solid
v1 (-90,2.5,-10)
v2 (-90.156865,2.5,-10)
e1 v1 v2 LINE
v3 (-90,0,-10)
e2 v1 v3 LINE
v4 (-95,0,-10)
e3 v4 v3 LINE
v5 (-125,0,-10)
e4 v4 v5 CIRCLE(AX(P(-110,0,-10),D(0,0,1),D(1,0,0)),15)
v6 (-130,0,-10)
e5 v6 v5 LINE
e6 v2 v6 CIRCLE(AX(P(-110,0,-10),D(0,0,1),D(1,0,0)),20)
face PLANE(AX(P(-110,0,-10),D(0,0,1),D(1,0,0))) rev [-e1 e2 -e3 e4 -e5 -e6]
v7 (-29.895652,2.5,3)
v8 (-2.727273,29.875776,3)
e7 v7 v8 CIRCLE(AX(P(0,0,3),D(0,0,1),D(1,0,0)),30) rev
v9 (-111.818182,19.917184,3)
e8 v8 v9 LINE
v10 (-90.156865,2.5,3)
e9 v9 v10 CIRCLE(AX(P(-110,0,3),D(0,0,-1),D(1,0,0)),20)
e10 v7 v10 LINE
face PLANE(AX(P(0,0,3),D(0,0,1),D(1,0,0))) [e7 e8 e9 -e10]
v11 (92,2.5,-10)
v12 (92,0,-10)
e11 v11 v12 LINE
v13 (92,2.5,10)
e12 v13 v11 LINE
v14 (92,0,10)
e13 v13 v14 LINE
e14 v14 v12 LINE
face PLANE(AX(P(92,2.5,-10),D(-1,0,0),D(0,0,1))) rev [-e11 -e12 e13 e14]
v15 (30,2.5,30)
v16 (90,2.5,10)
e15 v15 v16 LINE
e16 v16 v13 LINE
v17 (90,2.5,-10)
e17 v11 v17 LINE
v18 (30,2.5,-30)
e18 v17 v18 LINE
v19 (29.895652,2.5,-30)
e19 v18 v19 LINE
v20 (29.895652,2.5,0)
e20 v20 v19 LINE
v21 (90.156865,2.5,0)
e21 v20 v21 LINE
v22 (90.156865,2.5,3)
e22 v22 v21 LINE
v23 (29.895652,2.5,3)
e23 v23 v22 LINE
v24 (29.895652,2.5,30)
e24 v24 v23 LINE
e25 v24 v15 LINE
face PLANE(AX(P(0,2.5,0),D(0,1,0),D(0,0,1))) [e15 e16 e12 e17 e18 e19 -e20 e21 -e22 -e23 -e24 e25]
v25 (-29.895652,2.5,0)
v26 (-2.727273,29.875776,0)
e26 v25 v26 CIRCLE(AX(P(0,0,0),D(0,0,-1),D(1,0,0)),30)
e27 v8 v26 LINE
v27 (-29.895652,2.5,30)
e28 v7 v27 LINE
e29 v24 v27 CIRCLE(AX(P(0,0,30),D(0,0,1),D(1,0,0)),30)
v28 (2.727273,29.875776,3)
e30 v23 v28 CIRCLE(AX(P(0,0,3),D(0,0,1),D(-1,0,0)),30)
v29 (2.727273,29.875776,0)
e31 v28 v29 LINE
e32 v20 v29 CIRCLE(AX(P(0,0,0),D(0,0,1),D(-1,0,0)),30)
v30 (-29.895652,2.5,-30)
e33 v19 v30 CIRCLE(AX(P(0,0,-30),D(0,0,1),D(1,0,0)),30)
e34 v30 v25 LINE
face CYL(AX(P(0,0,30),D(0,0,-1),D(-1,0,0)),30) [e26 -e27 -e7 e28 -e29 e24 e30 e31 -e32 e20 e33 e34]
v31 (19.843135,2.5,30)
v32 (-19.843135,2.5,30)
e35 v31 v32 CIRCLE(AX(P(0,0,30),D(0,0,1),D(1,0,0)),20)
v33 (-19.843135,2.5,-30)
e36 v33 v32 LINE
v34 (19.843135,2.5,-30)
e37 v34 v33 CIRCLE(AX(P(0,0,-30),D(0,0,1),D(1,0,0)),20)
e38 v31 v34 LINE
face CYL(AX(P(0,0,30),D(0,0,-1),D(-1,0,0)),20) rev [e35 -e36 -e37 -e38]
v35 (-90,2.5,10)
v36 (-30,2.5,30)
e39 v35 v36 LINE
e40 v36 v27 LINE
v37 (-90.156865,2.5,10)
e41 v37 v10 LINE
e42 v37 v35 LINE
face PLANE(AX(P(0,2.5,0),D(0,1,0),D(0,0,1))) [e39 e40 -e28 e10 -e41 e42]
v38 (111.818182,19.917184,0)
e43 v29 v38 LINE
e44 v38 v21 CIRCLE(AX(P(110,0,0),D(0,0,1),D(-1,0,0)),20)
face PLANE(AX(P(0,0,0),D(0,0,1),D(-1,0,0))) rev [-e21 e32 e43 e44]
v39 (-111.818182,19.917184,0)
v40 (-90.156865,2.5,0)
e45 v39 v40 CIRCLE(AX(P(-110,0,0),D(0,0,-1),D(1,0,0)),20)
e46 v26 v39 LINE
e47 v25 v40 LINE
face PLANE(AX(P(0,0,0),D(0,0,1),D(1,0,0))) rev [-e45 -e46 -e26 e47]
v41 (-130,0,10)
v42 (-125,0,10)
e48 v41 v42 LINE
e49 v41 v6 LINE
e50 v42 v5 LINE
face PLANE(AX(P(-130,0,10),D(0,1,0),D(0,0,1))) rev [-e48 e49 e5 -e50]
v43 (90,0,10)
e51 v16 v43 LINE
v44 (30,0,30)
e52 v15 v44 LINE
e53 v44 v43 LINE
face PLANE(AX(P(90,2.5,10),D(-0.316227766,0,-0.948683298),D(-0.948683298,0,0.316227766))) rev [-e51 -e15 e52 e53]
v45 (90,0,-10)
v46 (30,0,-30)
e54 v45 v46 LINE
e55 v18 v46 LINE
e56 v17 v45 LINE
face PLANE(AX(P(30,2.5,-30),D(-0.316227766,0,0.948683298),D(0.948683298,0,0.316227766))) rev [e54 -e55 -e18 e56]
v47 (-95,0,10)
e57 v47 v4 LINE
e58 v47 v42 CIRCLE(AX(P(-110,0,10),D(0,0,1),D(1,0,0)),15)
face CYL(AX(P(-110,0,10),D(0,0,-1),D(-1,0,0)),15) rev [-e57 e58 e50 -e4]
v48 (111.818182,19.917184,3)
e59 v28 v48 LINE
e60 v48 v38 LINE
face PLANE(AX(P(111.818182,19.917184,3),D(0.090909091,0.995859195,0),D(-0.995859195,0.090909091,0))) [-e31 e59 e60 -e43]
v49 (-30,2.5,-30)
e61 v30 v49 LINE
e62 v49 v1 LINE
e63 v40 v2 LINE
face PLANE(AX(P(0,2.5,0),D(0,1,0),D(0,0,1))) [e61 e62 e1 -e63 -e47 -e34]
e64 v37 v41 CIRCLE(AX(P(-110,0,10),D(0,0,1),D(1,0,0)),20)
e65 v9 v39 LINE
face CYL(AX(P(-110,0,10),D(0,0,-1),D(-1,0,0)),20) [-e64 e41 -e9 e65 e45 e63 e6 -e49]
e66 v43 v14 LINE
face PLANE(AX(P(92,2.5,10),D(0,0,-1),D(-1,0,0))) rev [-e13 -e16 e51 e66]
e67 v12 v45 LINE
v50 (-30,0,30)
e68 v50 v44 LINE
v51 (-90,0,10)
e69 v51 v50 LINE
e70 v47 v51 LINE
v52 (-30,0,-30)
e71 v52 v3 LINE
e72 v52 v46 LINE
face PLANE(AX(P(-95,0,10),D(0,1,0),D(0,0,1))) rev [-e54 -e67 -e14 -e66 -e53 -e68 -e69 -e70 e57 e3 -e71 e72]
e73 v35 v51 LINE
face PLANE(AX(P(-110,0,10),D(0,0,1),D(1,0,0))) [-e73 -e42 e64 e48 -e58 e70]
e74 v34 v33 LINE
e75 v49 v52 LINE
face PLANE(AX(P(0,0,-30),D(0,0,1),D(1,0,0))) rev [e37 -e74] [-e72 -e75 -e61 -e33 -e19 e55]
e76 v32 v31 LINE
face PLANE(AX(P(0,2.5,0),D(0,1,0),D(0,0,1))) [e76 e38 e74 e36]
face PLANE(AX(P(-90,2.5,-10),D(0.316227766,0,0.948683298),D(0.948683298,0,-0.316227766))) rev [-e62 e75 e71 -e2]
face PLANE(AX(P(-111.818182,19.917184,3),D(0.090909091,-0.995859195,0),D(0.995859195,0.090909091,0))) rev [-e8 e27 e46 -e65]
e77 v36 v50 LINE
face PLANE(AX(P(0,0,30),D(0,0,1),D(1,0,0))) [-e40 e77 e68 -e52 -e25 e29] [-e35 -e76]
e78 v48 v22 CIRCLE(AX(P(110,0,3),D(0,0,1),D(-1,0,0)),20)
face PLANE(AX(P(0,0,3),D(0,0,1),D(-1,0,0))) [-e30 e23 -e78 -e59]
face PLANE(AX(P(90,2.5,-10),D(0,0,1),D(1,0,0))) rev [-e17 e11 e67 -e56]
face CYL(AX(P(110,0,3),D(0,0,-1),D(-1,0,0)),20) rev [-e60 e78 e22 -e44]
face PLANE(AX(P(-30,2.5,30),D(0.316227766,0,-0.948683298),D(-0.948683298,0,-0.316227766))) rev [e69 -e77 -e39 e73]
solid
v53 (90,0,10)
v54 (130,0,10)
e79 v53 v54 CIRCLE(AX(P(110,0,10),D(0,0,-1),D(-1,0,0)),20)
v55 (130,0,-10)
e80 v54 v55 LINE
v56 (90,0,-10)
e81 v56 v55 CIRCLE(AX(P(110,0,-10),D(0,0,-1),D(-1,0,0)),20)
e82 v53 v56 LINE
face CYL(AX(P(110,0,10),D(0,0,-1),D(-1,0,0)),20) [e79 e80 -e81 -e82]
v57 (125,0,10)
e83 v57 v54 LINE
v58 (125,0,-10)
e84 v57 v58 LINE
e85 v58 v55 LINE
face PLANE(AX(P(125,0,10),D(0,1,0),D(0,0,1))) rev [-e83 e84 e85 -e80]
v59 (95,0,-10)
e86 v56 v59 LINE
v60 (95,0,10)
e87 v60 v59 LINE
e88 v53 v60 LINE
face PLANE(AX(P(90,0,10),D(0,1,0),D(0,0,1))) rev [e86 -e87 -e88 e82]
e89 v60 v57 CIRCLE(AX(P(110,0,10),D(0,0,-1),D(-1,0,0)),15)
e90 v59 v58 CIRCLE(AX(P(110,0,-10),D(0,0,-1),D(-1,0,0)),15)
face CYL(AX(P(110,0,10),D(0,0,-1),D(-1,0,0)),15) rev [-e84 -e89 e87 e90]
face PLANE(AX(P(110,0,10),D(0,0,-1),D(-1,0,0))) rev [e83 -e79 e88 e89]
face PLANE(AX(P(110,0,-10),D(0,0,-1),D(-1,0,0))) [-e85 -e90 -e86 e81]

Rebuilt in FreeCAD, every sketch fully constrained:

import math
import FreeCAD as App
import Part
import Sketcher

V = App.Vector
Q = App.Units.Quantity

doc = App.newDocument("Part")
body = doc.addObject("PartDesign::Body", "Body")

sketch1 = body.newObject("Sketcher::SketchObject", "Sketch")
sketch1.AttachmentSupport = (doc.getObject("XY_Plane"), [""])
sketch1.MapMode = "FlatFace"
sketch1.addGeometry([
    Part.LineSegment(V(20, 0, 0), V(30, 0, 0)),
    Part.ArcOfCircle(Part.Circle(V(0, 0, 0), V(0, 0, 1), 30), math.radians(0), math.radians(180)),
    Part.LineSegment(V(-30, 0, 0), V(-20, 0, 0)),
    Part.ArcOfCircle(Part.Circle(V(0, 0, 0), V(0, 0, 1), 20), math.radians(0), math.radians(180)),
], False)
sketch1.addConstraint([
    Sketcher.Constraint("Coincident", 0, 2, 1, 1),
    Sketcher.Constraint("Coincident", 1, 2, 2, 1),
    Sketcher.Constraint("Coincident", 2, 2, 3, 2),
    Sketcher.Constraint("Coincident", 3, 1, 0, 1),
    Sketcher.Constraint("Horizontal", 0),
    Sketcher.Constraint("Horizontal", 2),
    Sketcher.Constraint("Coincident", 1, 3, -1, 1),
    Sketcher.Constraint("Coincident", 3, 3, -1, 1),
    Sketcher.Constraint("PointOnObject", 0, 2, -1),
    Sketcher.Constraint("PointOnObject", 1, 2, -1),
    Sketcher.Constraint("Radius", 1, Q("30 mm")),
    Sketcher.Constraint("Radius", 3, Q("20 mm")),
])
pad1 = body.newObject("PartDesign::Pad", "Pad")
pad1.Profile = sketch1
pad1.Length = 60
pad1.Midplane = True

sketch2 = body.newObject("Sketcher::SketchObject", "Sketch001")
sketch2.AttachmentSupport = (doc.getObject("XZ_Plane"), [""])
sketch2.MapMode = "FlatFace"
sketch2.addGeometry([
    Part.LineSegment(V(-30, -30, 0), V(-90, -10, 0)),
    Part.LineSegment(V(-90, -10, 0), V(-92, -10, 0)),
    Part.LineSegment(V(-92, -10, 0), V(-92, 10, 0)),
    Part.LineSegment(V(-92, 10, 0), V(-90, 10, 0)),
    Part.LineSegment(V(-90, 10, 0), V(-30, 30, 0)),
    Part.LineSegment(V(-30, 30, 0), V(30, 30, 0)),
    Part.LineSegment(V(30, 30, 0), V(90, 10, 0)),
    Part.LineSegment(V(90, 10, 0), V(92, 10, 0)),
    Part.LineSegment(V(92, 10, 0), V(92, -10, 0)),
    Part.LineSegment(V(92, -10, 0), V(90, -10, 0)),
    Part.LineSegment(V(90, -10, 0), V(30, -30, 0)),
    Part.LineSegment(V(30, -30, 0), V(-30, -30, 0)),
], False)
sketch2.addConstraint([
    Sketcher.Constraint("Coincident", 0, 2, 1, 1),
    Sketcher.Constraint("Coincident", 1, 2, 2, 1),
    Sketcher.Constraint("Coincident", 2, 2, 3, 1),
    Sketcher.Constraint("Coincident", 3, 2, 4, 1),
    Sketcher.Constraint("Coincident", 4, 2, 5, 1),
    Sketcher.Constraint("Coincident", 5, 2, 6, 1),
    Sketcher.Constraint("Coincident", 6, 2, 7, 1),
    Sketcher.Constraint("Coincident", 7, 2, 8, 1),
    Sketcher.Constraint("Coincident", 8, 2, 9, 1),
    Sketcher.Constraint("Coincident", 9, 2, 10, 1),
    Sketcher.Constraint("Coincident", 10, 2, 11, 1),
    Sketcher.Constraint("Coincident", 11, 2, 0, 1),
    Sketcher.Constraint("Horizontal", 1),
    Sketcher.Constraint("Vertical", 2),
    Sketcher.Constraint("Horizontal", 3),
    Sketcher.Constraint("Horizontal", 5),
    Sketcher.Constraint("Horizontal", 7),
    Sketcher.Constraint("Vertical", 8),
    Sketcher.Constraint("Horizontal", 9),
    Sketcher.Constraint("Horizontal", 11),
    Sketcher.Constraint("Symmetric", 0, 2, 6, 2, -1, 1),
    Sketcher.Constraint("Symmetric", 2, 2, 8, 2, -1, 1),
    Sketcher.Constraint("Symmetric", 4, 2, 10, 2, -1, 1),
    Sketcher.Constraint("Symmetric", 3, 2, 6, 2, -2),
    Sketcher.Constraint("Parallel", 0, 6),
    Sketcher.Constraint("Parallel", 4, 10),
    Sketcher.Constraint("Vertical", 5, 2, 10, 2),
    Sketcher.Constraint("DistanceX", 1, 2, 1, 1, Q("2 mm")),
    Sketcher.Constraint("DistanceX", 5, 1, 5, 2, Q("60 mm")),
    Sketcher.Constraint("DistanceY", 2, 1, 2, 2, Q("20 mm")),
    Sketcher.Constraint("DistanceX", 0, 2, -1, 1, Q("90 mm")),
    Sketcher.Constraint("DistanceY", -1, 1, 4, 2, Q("30 mm")),
])
pad2 = body.newObject("PartDesign::Pad", "Pad001")
pad2.Profile = sketch2
pad2.Length = 2.5
pad2.Reversed = True
body2 = doc.addObject("PartDesign::Body", "Body001")

sketch3 = body2.newObject("Sketcher::SketchObject", "Sketch002")
sketch3.AttachmentSupport = (doc.getObject("XY_Plane001"), [""])
sketch3.MapMode = "FlatFace"
sketch3.addGeometry([
    Part.LineSegment(V(-130, 0, 0), V(-125, 0, 0)),
    Part.ArcOfCircle(Part.Circle(V(-110, 0, 0), V(0, 0, 1), 15), math.radians(0), math.radians(180)),
    Part.LineSegment(V(-95, 0, 0), V(-90, 0, 0)),
    Part.ArcOfCircle(Part.Circle(V(-110, 0, 0), V(0, 0, 1), 20), math.radians(0), math.radians(180)),
], False)
sketch3.addConstraint([
    Sketcher.Constraint("Coincident", 0, 2, 1, 2),
    Sketcher.Constraint("Coincident", 1, 1, 2, 1),
    Sketcher.Constraint("Coincident", 2, 2, 3, 1),
    Sketcher.Constraint("Coincident", 3, 2, 0, 1),
    Sketcher.Constraint("Horizontal", 0),
    Sketcher.Constraint("Horizontal", 2),
    Sketcher.Constraint("Coincident", 3, 3, 1, 3),
    Sketcher.Constraint("PointOnObject", 1, 3, -1),
    Sketcher.Constraint("PointOnObject", 0, 2, -1),
    Sketcher.Constraint("PointOnObject", 1, 1, -1),
    Sketcher.Constraint("Radius", 1, Q("15 mm")),
    Sketcher.Constraint("Radius", 3, Q("20 mm")),
    Sketcher.Constraint("DistanceX", 1, 3, -1, 1, Q("110 mm")),
])
pad3 = body2.newObject("PartDesign::Pad", "Pad002")
pad3.Profile = sketch3
pad3.Length = 20
pad3.Midplane = True
body3 = doc.addObject("PartDesign::Body", "Body002")

sketch4 = body3.newObject("Sketcher::SketchObject", "Sketch003")
sketch4.AttachmentSupport = (doc.getObject("XY_Plane002"), [""])
sketch4.MapMode = "FlatFace"
sketch4.addGeometry([
    Part.LineSegment(V(90, 0, 0), V(95, 0, 0)),
    Part.ArcOfCircle(Part.Circle(V(110, 0, 0), V(0, 0, 1), 15), math.radians(0), math.radians(180)),
    Part.LineSegment(V(125, 0, 0), V(130, 0, 0)),
    Part.ArcOfCircle(Part.Circle(V(110, 0, 0), V(0, 0, 1), 20), math.radians(0), math.radians(180)),
], False)
sketch4.addConstraint([
    Sketcher.Constraint("Coincident", 0, 2, 1, 2),
    Sketcher.Constraint("Coincident", 1, 1, 2, 1),
    Sketcher.Constraint("Coincident", 2, 2, 3, 1),
    Sketcher.Constraint("Coincident", 3, 2, 0, 1),
    Sketcher.Constraint("Horizontal", 0),
    Sketcher.Constraint("Horizontal", 2),
    Sketcher.Constraint("Coincident", 3, 3, 1, 3),
    Sketcher.Constraint("PointOnObject", 1, 3, -1),
    Sketcher.Constraint("PointOnObject", 0, 2, -1),
    Sketcher.Constraint("PointOnObject", 1, 1, -1),
    Sketcher.Constraint("Radius", 1, Q("15 mm")),
    Sketcher.Constraint("Radius", 3, Q("20 mm")),
    Sketcher.Constraint("DistanceX", -1, 1, 1, 3, Q("110 mm")),
])
pad4 = body3.newObject("PartDesign::Pad", "Pad003")
pad4.Profile = sketch4
pad4.Length = 20
pad4.Midplane = True
doc.recompute()

boolean = body.newObject("PartDesign::Boolean", "Boolean")
boolean.Type = "Fuse"
boolean.addObjects([body2])

sketch5 = body.newObject("Sketcher::SketchObject", "Sketch004")
sketch5.AttachmentSupport = (doc.getObject("XY_Plane"), [""])
sketch5.MapMode = "FlatFace"
sketch5.AttachmentOffset = App.Placement(V(0, 0, 3), App.Rotation())
sketch5.addGeometry([
    Part.LineSegment(V(-3, 30, 0), V(-112, 20, 0)),
    Part.ArcOfCircle(Part.Circle(V(-110, 0, 0), V(0, 0, 1), 20), math.radians(0), math.radians(95)),
    Part.LineSegment(V(-90, 0, 0), V(-30, 0, 0)),
    Part.ArcOfCircle(Part.Circle(V(0, 0, 0), V(0, 0, 1), 30), math.radians(95), math.radians(180)),
], False)
sketch5.addConstraint([
    Sketcher.Constraint("Tangent", 0, 2, 1, 2),
    Sketcher.Constraint("Coincident", 1, 1, 2, 1),
    Sketcher.Constraint("Coincident", 2, 2, 3, 2),
    Sketcher.Constraint("Tangent", 3, 1, 0, 1),
    Sketcher.Constraint("Horizontal", 2),
    Sketcher.Constraint("Coincident", 3, 3, -1, 1),
    Sketcher.Constraint("PointOnObject", 1, 3, -1),
    Sketcher.Constraint("PointOnObject", 1, 1, -1),
    Sketcher.Constraint("Radius", 1, Q("20 mm")),
    Sketcher.Constraint("Radius", 3, Q("30 mm")),
    Sketcher.Constraint("DistanceX", 2, 1, 2, 2, Q("60 mm")),
])
pad5 = body.newObject("PartDesign::Pad", "Pad004")
pad5.Profile = sketch5
pad5.Length = 3
pad5.Reversed = True
doc.recompute()

mirrored = body.newObject("PartDesign::Mirrored", "Mirrored")
mirrored.Originals = [pad5]
mirrored.MirrorPlane = (doc.getObject("YZ_Plane"), [""])
body.Tip = mirrored

doc.recompute()
